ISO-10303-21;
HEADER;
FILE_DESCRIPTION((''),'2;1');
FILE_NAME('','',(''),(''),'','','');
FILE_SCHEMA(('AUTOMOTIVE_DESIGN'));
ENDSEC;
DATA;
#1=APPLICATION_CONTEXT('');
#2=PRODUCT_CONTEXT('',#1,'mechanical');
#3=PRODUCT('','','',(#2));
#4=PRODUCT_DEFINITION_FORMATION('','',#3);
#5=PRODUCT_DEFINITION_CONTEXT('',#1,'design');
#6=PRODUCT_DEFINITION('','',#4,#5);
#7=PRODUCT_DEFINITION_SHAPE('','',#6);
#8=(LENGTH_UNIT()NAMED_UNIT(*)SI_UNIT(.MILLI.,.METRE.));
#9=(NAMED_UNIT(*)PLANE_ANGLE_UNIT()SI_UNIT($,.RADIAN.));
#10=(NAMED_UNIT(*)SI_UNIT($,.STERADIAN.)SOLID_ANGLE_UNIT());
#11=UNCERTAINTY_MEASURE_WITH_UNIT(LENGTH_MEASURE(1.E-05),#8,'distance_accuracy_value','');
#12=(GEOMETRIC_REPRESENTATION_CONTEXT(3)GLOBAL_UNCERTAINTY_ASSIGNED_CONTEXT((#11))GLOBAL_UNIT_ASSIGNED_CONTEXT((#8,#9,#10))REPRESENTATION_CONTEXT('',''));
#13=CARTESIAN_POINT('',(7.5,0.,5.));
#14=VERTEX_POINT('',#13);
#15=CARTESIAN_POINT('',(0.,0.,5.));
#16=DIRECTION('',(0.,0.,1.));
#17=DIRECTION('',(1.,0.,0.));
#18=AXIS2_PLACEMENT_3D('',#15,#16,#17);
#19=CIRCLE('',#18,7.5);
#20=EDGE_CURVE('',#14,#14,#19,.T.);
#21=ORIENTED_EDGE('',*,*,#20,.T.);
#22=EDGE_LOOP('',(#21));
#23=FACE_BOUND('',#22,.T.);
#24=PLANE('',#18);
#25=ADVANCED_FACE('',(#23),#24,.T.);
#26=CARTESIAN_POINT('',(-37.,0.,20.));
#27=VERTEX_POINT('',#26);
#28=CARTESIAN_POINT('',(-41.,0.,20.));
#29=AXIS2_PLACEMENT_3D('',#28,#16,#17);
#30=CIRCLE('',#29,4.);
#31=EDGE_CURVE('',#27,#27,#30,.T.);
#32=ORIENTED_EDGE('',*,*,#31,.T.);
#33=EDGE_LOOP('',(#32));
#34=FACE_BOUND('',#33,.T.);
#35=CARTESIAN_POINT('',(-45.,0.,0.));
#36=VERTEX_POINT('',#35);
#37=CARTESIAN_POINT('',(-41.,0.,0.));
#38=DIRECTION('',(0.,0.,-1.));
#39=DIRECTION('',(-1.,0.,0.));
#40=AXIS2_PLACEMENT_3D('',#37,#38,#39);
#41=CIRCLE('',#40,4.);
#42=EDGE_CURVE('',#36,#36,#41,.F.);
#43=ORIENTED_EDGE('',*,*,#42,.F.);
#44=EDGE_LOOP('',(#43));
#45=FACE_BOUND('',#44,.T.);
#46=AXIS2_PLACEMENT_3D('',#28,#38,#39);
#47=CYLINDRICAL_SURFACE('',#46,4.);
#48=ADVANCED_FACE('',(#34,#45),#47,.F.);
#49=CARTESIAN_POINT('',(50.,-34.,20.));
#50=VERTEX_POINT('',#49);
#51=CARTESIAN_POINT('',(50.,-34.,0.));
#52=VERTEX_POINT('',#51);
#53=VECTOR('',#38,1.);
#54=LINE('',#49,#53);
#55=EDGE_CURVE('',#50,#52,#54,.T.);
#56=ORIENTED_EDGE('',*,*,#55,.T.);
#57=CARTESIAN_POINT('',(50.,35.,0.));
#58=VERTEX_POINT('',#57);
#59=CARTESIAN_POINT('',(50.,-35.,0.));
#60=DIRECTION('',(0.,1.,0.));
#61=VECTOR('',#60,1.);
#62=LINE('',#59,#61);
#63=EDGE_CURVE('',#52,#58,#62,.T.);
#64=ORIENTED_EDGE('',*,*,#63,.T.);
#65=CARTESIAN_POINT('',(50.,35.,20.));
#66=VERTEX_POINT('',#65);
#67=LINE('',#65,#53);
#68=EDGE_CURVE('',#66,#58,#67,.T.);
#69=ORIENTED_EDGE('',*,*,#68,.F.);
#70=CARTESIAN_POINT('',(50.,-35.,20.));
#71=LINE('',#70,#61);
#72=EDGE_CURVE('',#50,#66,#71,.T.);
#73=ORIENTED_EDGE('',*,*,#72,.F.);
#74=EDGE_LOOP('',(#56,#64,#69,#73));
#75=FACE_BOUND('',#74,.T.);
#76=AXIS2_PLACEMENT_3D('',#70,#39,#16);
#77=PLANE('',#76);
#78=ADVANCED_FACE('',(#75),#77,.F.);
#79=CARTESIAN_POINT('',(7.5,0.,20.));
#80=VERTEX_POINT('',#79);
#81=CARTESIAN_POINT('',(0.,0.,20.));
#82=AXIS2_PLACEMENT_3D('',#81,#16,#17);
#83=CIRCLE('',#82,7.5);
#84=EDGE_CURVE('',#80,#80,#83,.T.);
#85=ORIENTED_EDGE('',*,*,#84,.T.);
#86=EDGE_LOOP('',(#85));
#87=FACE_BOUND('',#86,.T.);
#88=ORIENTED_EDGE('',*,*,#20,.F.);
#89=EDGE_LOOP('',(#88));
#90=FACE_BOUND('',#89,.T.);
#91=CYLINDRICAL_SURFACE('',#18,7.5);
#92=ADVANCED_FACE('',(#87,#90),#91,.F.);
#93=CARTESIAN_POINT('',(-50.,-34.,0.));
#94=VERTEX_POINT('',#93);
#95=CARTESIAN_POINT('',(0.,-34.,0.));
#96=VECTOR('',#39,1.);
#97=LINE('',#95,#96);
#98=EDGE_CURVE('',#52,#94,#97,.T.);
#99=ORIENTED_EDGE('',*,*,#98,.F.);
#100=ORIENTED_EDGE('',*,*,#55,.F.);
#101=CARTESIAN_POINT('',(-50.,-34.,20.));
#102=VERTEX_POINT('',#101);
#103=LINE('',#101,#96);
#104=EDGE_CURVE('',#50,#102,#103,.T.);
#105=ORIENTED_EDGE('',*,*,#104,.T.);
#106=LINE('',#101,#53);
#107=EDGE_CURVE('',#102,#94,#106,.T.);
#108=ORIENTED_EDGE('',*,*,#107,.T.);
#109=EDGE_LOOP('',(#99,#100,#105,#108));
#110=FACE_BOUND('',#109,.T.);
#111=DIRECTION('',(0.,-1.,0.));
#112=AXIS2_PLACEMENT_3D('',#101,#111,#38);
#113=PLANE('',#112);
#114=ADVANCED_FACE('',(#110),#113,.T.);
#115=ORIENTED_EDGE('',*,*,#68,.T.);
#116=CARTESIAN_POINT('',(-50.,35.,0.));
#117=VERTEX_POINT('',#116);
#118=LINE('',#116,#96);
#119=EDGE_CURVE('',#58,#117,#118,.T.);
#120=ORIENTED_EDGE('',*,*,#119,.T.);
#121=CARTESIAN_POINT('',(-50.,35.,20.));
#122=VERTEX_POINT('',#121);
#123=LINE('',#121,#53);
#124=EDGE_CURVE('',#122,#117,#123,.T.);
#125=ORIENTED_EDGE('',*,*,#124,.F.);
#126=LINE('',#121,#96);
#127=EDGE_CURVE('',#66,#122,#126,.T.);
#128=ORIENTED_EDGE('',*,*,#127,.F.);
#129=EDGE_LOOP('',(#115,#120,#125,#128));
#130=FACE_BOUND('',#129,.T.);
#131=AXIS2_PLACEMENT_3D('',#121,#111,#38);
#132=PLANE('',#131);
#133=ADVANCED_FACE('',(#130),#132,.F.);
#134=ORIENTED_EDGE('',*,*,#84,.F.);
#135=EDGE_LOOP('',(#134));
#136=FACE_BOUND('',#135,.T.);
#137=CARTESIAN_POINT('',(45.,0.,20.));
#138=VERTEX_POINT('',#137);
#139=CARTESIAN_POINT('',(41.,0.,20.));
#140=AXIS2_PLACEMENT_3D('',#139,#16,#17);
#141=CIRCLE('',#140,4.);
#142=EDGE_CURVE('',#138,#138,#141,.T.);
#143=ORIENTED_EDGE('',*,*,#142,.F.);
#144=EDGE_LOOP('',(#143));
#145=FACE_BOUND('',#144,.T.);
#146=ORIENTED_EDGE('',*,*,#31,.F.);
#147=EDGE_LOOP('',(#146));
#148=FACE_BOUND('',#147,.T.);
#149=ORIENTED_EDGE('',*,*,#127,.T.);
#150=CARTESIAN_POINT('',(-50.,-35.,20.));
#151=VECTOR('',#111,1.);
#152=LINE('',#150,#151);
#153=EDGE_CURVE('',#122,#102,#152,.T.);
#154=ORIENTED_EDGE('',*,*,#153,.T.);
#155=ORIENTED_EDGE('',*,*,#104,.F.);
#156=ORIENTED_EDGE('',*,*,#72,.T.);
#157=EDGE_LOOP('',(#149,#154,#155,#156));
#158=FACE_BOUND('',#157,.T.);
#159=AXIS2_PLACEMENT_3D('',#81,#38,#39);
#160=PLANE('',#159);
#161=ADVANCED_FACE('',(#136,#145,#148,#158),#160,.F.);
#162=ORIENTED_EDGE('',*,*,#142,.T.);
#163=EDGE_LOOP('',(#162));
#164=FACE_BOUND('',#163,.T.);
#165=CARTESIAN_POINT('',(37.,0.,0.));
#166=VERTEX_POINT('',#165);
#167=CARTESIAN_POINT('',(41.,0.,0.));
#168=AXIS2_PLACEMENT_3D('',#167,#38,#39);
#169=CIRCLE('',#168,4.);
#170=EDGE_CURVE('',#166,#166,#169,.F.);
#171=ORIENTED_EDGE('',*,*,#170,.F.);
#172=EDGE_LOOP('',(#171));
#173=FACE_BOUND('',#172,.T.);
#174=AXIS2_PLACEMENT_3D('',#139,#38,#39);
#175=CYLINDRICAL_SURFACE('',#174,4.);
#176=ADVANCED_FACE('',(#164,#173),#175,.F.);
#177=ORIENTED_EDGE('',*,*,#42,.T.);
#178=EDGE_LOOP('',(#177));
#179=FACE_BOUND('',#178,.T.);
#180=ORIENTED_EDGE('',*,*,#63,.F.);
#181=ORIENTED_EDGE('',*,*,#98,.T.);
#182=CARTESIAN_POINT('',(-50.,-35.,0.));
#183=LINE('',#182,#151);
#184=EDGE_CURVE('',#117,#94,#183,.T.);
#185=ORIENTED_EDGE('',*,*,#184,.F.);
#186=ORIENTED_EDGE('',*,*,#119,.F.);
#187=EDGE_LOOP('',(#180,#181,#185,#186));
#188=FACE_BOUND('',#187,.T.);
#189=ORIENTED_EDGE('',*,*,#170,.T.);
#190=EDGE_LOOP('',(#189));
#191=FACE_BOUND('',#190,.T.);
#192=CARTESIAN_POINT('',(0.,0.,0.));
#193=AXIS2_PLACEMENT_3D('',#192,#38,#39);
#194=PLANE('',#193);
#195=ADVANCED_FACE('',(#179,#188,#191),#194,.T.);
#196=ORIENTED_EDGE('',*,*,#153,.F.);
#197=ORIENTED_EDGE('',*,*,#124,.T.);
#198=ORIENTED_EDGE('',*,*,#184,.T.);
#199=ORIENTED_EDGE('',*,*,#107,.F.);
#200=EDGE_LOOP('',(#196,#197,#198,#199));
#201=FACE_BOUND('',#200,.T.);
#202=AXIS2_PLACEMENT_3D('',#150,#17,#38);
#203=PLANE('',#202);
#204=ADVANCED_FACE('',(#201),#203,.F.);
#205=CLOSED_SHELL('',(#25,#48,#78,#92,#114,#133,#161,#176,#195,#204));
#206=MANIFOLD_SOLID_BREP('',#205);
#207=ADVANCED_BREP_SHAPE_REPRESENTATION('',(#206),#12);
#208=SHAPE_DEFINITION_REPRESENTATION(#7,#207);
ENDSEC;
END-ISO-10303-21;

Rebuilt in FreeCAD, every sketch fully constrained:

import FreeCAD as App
import Part
import Sketcher

V = App.Vector


def add_polygon(sketch, points):
    """Adds a closed chain of lines whose ends are joined by coincident constraints."""
    first, n = sketch.GeometryCount, len(points)
    for a, b in zip(points, points[1:] + points[:1]):
        sketch.addGeometry(Part.LineSegment(App.Vector(*a, 0), App.Vector(*b, 0)), False)
    for i in range(n):
        sketch.addConstraint(Sketcher.Constraint("Coincident", first + i, 2, first + (i + 1) % n, 1))

doc = App.newDocument("Part")
body = doc.addObject("PartDesign::Body", "Body")

# Sketch on XY plane
sketch1 = body.newObject("Sketcher::SketchObject", "Sketch")
sketch1.AttachmentSupport = (doc.getObject("XY_Plane"), [""])
sketch1.MapMode = "FlatFace"
add_polygon(sketch1, [(-50, 35), (-50, -35), (50, -35), (50, 35)])  # lines 0-3
sketch1.addConstraint([
    Sketcher.Constraint("Vertical", 0),
    Sketcher.Constraint("Horizontal", 1),
    Sketcher.Constraint("Vertical", 2),
    Sketcher.Constraint("Horizontal", 3),
    Sketcher.Constraint("Symmetric", 0, 2, 2, 2, -1, 1),
    Sketcher.Constraint("DistanceX", 1, 1, 1, 2, 100.0),
    Sketcher.Constraint("DistanceY", 0, 2, 0, 1, 70.0),
])
pad1 = body.newObject("PartDesign::Pad", "Pad")
pad1.Profile = sketch1
pad1.Length = 20

# Sketch on XY plane
sketch2 = body.newObject("Sketcher::SketchObject", "Sketch001")
sketch2.AttachmentSupport = (doc.getObject("XY_Plane"), [""])
sketch2.MapMode = "FlatFace"
sketch2.addGeometry([
    Part.Circle(V(-41, 0, 0), V(0, 0, 1), 4),
    Part.Circle(V(41, 0, 0), V(0, 0, 1), 4),
], False)
sketch2.addConstraint([
    Sketcher.Constraint("Equal", 0, 1),
    Sketcher.Constraint("Symmetric", 0, 3, 1, 3, -1, 1),
    Sketcher.Constraint("PointOnObject", 0, 3, -1),
    Sketcher.Constraint("Diameter", 0, 8.0),
    Sketcher.Constraint("DistanceX", 0, 3, -1, 1, 41.0),
])
pocket1 = body.newObject("PartDesign::Pocket", "Pocket")
pocket1.Profile = sketch2
pocket1.Type = "ThroughAll"
pocket1.Midplane = True

# Sketch on XY plane
sketch3 = body.newObject("Sketcher::SketchObject", "Sketch002")
sketch3.AttachmentSupport = (doc.getObject("XY_Plane"), [""])
sketch3.MapMode = "FlatFace"
sketch3.AttachmentOffset = App.Placement(V(0, 0, 20), App.Rotation())
sketch3.addGeometry(Part.Circle(V(0, 0, 0), V(0, 0, 1), 8), False)
sketch3.addConstraint([
    Sketcher.Constraint("Coincident", 0, 3, -1, 1),
    Sketcher.Constraint("Diameter", 0, 15.0),
])
pocket2 = body.newObject("PartDesign::Pocket", "Pocket001")
pocket2.Profile = sketch3
pocket2.Length = 15

# Sketch on XY plane
sketch4 = body.newObject("Sketcher::SketchObject", "Sketch003")
sketch4.AttachmentSupport = (doc.getObject("XY_Plane"), [""])
sketch4.MapMode = "FlatFace"
add_polygon(sketch4, [(-50, -34), (-50, -35), (50, -35), (50, -34)])  # lines 0-3
sketch4.addConstraint([
    Sketcher.Constraint("Vertical", 0),
    Sketcher.Constraint("Horizontal", 1),
    Sketcher.Constraint("Vertical", 2),
    Sketcher.Constraint("Horizontal", 3),
    Sketcher.Constraint("DistanceX", 1, 1, 1, 2, 100.0),
    Sketcher.Constraint("DistanceY", 0, 2, 0, 1, 1.0),
    Sketcher.Constraint("DistanceX", 0, 2, -1, 1, 50.0),
    Sketcher.Constraint("DistanceY", 0, 2, -1, 1, 35.0),
])
pocket3 = body.newObject("PartDesign::Pocket", "Pocket002")
pocket3.Profile = sketch4
pocket3.Type = "ThroughAll"
pocket3.Midplane = True

doc.recompute()
